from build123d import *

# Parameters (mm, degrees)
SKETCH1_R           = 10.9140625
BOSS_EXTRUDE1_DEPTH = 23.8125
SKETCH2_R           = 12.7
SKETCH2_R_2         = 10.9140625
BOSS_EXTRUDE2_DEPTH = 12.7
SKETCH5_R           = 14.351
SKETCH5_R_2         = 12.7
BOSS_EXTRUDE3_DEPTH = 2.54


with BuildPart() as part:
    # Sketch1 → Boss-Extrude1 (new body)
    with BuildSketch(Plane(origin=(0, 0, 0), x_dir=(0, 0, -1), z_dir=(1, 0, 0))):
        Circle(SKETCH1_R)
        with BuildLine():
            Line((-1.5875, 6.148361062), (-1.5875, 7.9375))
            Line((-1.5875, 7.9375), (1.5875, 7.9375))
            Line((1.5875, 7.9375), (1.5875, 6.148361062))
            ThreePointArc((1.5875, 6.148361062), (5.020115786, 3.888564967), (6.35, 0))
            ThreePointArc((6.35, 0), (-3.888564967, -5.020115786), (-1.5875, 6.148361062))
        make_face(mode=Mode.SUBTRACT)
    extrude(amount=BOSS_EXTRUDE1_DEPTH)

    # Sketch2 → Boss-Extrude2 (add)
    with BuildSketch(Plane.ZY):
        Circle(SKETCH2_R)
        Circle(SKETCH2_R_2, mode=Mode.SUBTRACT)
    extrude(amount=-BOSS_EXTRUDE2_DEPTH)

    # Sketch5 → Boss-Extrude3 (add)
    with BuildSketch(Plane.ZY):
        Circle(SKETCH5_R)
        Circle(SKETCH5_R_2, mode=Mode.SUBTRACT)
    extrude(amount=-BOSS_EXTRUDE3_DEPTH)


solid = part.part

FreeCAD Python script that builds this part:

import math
import FreeCAD as App
import Part
import Sketcher
Q = App.Units.Quantity

doc = App.newDocument("Part")
params = doc.addObject("Spreadsheet::Sheet", "Params")
for row, (alias, value) in enumerate([
    ("sketch1_radius", "0.25 in"),
    ("sketch1_diameter", "0.859375 in"),
    ("sketch1_height", "0.125 in"),
    ("pad1_length", "0.9375 in"),
    ("sketch2_diameter", "1 in"),
    ("sketch2_diameter2", "0.859375 in"),
    ("pad2_length", "0.5 in"),
    ("sketch3_diameter", "1 in"),
    ("sketch3_diameter2", "1.13 in"),
    ("pad3_length", "0.1 in"),
], start=1):
    params.set(f"A{row}", alias)
    params.set(f"B{row}", "=" + value)
    params.setAlias(f"B{row}", alias)

body = doc.addObject("PartDesign::Body", "Body")

sketch1 = body.newObject("Sketcher::SketchObject", "Sketch")
sketch1.AttachmentSupport = (doc.getObject("YZ_Plane"), [""])
sketch1.MapMode = "FlatFace"
sketch1.addGeometry([
    Part.Circle(App.Vector(0, 0, 0), App.Vector(0, 0, 1), 10.914062),
    Part.ArcOfCircle(Part.Circle(App.Vector(0, 0, 0), App.Vector(0, 0, 1), 6.35), math.radians(14.477512), math.radians(270)),
    Part.LineSegment(App.Vector(6.148361, 1.5875, 0), App.Vector(7.9375, 1.5875, 0)),
    Part.LineSegment(App.Vector(7.9375, 1.5875, 0), App.Vector(7.9375, -1.5875, 0)),
    Part.LineSegment(App.Vector(7.9375, -1.5875, 0), App.Vector(6.148361, -1.5875, 0)),
    Part.ArcOfCircle(Part.Circle(App.Vector(0, 0, 0), App.Vector(0, 0, 1), 6.35), math.radians(-90), math.radians(-14.477512)),
], False)
sketch1.addConstraint([
    Sketcher.Constraint("Coincident", 1, 1, 2, 1),
    Sketcher.Constraint("Coincident", 2, 2, 3, 1),
    Sketcher.Constraint("Coincident", 3, 2, 4, 1),
    Sketcher.Constraint("Coincident", 4, 2, 5, 2),
    Sketcher.Constraint("Tangent", 5, 1, 1, 2),
    Sketcher.Constraint("Horizontal", 2),
    Sketcher.Constraint("Vertical", 3),
    Sketcher.Constraint("Horizontal", 4),
    Sketcher.Constraint("Coincident", 0, 3, -1, 1),
    Sketcher.Constraint("Coincident", 1, 3, -1, 1),
    Sketcher.Constraint("Equal", 1, 5),
    Sketcher.Constraint("PointOnObject", 5, 1, -2),
    Sketcher.Constraint("Vertical", 1, 1, 4, 2),
    Sketcher.Constraint("Radius", 1, Q("0.25 in")),
    Sketcher.Constraint("Diameter", 0, Q("0.859375 in")),
    Sketcher.Constraint("DistanceY", 3, 2, 3, 1, Q("0.125 in")),
    Sketcher.Constraint("DistanceX", -1, 1, 2, 2, Q("0.3125 in")),
])
sketch1.setExpression("Constraints[13]", "Params.sketch1_radius")
sketch1.setExpression("Constraints[14]", "Params.sketch1_diameter")
sketch1.setExpression("Constraints[15]", "Params.sketch1_height")
pad1 = body.newObject("PartDesign::Pad", "Pad")
pad1.Profile = sketch1
pad1.setExpression("Length", "Params.pad1_length")

sketch2 = body.newObject("Sketcher::SketchObject", "Sketch001")
sketch2.AttachmentSupport = (doc.getObject("YZ_Plane"), [""])
sketch2.MapMode = "FlatFace"
sketch2.addGeometry([
    Part.Circle(App.Vector(0, 0, 0), App.Vector(0, 0, 1), 12.7),
    Part.Circle(App.Vector(0, 0, 0), App.Vector(0, 0, 1), 10.914062),
], False)
sketch2.addConstraint([
    Sketcher.Constraint("Coincident", 0, 3, -1, 1),
    Sketcher.Constraint("Coincident", 1, 3, -1, 1),
    Sketcher.Constraint("Diameter", 0, Q("1 in")),
    Sketcher.Constraint("Diameter", 1, Q("0.859375 in")),
])
sketch2.setExpression("Constraints[2]", "Params.sketch2_diameter")
sketch2.setExpression("Constraints[3]", "Params.sketch2_diameter2")
pad2 = body.newObject("PartDesign::Pad", "Pad001")
pad2.Profile = sketch2
pad2.setExpression("Length", "Params.pad2_length")

sketch3 = body.newObject("Sketcher::SketchObject", "Sketch002")
sketch3.AttachmentSupport = (doc.getObject("YZ_Plane"), [""])
sketch3.MapMode = "FlatFace"
sketch3.addGeometry([
    Part.Circle(App.Vector(0, 0, 0), App.Vector(0, 0, 1), 14.351),
    Part.Circle(App.Vector(0, 0, 0), App.Vector(0, 0, 1), 12.7),
], False)
sketch3.addConstraint([
    Sketcher.Constraint("Coincident", 0, 3, -1, 1),
    Sketcher.Constraint("Coincident", 1, 3, -1, 1),
    Sketcher.Constraint("Diameter", 1, Q("1 in")),
    Sketcher.Constraint("Diameter", 0, Q("1.13 in")),
])
sketch3.setExpression("Constraints[2]", "Params.sketch3_diameter")
sketch3.setExpression("Constraints[3]", "Params.sketch3_diameter2")
pad3 = body.newObject("PartDesign::Pad", "Pad002")
pad3.Profile = sketch3
pad3.setExpression("Length", "Params.pad3_length")

doc.recompute()
